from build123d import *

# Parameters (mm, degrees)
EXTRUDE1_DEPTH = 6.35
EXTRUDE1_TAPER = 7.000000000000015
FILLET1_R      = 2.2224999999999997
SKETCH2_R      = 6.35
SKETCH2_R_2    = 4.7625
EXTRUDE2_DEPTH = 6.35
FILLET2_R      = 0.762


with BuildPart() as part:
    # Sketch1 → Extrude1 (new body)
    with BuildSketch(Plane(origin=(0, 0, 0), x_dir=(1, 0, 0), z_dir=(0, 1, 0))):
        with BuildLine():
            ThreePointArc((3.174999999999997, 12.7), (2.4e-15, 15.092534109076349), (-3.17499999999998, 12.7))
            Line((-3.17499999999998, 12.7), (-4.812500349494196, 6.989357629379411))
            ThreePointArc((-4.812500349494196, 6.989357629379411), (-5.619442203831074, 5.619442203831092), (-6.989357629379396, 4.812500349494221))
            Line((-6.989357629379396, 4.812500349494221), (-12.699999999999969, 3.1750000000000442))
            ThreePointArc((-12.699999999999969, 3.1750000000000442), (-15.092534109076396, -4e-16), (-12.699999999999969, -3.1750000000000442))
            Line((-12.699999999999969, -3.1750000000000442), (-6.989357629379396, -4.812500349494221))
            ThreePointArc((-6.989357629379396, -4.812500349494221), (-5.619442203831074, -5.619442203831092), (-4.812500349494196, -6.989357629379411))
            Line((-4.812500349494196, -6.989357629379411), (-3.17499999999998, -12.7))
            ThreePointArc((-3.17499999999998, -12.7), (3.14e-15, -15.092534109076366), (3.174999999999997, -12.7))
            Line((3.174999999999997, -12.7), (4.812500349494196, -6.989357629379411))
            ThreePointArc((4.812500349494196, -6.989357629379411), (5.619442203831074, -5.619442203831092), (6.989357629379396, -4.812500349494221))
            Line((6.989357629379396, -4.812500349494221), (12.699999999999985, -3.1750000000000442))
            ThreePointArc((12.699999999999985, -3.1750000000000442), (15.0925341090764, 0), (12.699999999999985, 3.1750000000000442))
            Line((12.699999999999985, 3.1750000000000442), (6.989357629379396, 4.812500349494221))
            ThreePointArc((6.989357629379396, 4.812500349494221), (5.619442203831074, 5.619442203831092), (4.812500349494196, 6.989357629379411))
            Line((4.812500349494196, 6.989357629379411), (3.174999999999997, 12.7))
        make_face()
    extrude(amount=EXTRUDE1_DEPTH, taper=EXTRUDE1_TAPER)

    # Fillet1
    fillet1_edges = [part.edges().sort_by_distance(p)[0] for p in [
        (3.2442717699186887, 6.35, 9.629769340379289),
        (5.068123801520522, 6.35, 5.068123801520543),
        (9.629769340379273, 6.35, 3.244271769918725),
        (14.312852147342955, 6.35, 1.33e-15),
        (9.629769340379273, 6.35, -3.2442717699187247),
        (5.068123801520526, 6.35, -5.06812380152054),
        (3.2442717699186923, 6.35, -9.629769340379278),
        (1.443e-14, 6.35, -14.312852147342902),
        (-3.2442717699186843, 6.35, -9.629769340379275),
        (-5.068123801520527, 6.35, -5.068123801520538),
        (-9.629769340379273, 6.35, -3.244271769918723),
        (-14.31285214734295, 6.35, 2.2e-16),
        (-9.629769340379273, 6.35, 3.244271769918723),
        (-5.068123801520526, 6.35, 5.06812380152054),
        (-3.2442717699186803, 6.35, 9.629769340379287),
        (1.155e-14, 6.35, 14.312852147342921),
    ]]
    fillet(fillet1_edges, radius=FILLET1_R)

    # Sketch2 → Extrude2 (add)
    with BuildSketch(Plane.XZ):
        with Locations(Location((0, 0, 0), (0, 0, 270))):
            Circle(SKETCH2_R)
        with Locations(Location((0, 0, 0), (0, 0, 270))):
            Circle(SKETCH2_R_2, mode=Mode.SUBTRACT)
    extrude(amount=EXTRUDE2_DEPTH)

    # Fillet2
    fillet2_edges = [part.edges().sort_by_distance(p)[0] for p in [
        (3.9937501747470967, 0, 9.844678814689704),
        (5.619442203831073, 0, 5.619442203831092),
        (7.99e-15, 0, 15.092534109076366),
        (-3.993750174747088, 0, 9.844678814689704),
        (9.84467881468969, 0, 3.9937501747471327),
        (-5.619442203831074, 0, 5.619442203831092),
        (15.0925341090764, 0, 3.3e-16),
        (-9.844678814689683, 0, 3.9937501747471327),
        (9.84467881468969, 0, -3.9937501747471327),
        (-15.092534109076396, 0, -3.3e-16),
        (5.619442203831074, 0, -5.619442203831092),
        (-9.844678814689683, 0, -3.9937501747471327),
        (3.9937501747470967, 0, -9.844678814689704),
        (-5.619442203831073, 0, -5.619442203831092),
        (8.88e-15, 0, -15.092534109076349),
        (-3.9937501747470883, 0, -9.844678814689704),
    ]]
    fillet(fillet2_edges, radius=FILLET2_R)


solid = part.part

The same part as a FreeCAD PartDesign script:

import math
import FreeCAD as App
import Part
import Sketcher

V = App.Vector
Q = App.Units.Quantity


def edges_at(feature, points):
    """Names of the edges that pass closest to the given points."""
    edges = feature.Shape.Edges
    near = lambda p: min(range(len(edges)), key=lambda i: edges[i].distToShape(Part.Vertex(*p))[0])
    return sorted({f"Edge{near(p) + 1}" for p in points})

doc = App.newDocument("Part")
body = doc.addObject("PartDesign::Body", "Body")

sketch1 = body.newObject("Sketcher::SketchObject", "Sketch")
sketch1.AttachmentSupport = (doc.getObject("XZ_Plane"), [""])
sketch1.MapMode = "FlatFace"
sketch1.addGeometry([
    Part.ArcOfCircle(Part.Circle(V(0, -11.8, 0), V(0, 0, 1), 3.3), math.radians(-164), math.radians(-16)),
    Part.LineSegment(V(-3.2, -12.7, 0), V(-4.8, -7, 0)),
    Part.ArcOfCircle(Part.Circle(V(-7.9, -7.9, 0), V(0, 0, 1), 3.2), math.radians(16), math.radians(74)),
    Part.LineSegment(V(-7, -4.8, 0), V(-12.7, -3.2, 0)),
    Part.ArcOfCircle(Part.Circle(V(-11.8, 0, 0), V(0, 0, 1), 3.3), math.radians(106), math.radians(254)),
    Part.LineSegment(V(-12.7, 3.2, 0), V(-7, 4.8, 0)),
    Part.ArcOfCircle(Part.Circle(V(-7.9, 7.9, 0), V(0, 0, 1), 3.2), math.radians(-74), math.radians(-16)),
    Part.LineSegment(V(-4.8, 7, 0), V(-3.2, 12.7, 0)),
    Part.ArcOfCircle(Part.Circle(V(0, 11.8, 0), V(0, 0, 1), 3.3), math.radians(16), math.radians(164)),
    Part.LineSegment(V(3.2, 12.7, 0), V(4.8, 7, 0)),
    Part.ArcOfCircle(Part.Circle(V(7.9, 7.9, 0), V(0, 0, 1), 3.2), math.radians(-164), math.radians(-106)),
    Part.LineSegment(V(7, 4.8, 0), V(12.7, 3.2, 0)),
    Part.ArcOfCircle(Part.Circle(V(11.8, 0, 0), V(0, 0, 1), 3.3), math.radians(-74), math.radians(74)),
    Part.LineSegment(V(12.7, -3.2, 0), V(7, -4.8, 0)),
    Part.ArcOfCircle(Part.Circle(V(7.9, -7.9, 0), V(0, 0, 1), 3.2), math.radians(106), math.radians(164)),
    Part.LineSegment(V(4.8, -7, 0), V(3.2, -12.7, 0)),
], False)
sketch1.addConstraint([
    Sketcher.Constraint("Tangent", 0, 1, 1, 1),
    Sketcher.Constraint("Tangent", 1, 2, 2, 1),
    Sketcher.Constraint("Tangent", 2, 2, 3, 1),
    Sketcher.Constraint("Tangent", 3, 2, 4, 2),
    Sketcher.Constraint("Tangent", 4, 1, 5, 1),
    Sketcher.Constraint("Tangent", 5, 2, 6, 1),
    Sketcher.Constraint("Tangent", 6, 2, 7, 1),
    Sketcher.Constraint("Tangent", 7, 2, 8, 2),
    Sketcher.Constraint("Tangent", 8, 1, 9, 1),
    Sketcher.Constraint("Tangent", 9, 2, 10, 1),
    Sketcher.Constraint("Tangent", 10, 2, 11, 1),
    Sketcher.Constraint("Tangent", 11, 2, 12, 2),
    Sketcher.Constraint("Tangent", 12, 1, 13, 1),
    Sketcher.Constraint("Tangent", 13, 2, 14, 1),
    Sketcher.Constraint("Tangent", 14, 2, 15, 1),
    Sketcher.Constraint("Tangent", 15, 2, 0, 2),
    Sketcher.Constraint("Equal", 0, 4),
    Sketcher.Constraint("Equal", 2, 6),
    Sketcher.Constraint("Equal", 4, 8),
    Sketcher.Constraint("Equal", 6, 10),
    Sketcher.Constraint("Equal", 8, 12),
    Sketcher.Constraint("Equal", 10, 14),
    Sketcher.Constraint("Symmetric", 0, 3, 8, 3, -1, 1),
    Sketcher.Constraint("Symmetric", 2, 3, 10, 3, -1, 1),
    Sketcher.Constraint("Symmetric", 4, 3, 12, 3, -1, 1),
    Sketcher.Constraint("Symmetric", 6, 3, 14, 3, -1, 1),
    Sketcher.Constraint("Symmetric", 6, 3, 10, 3, -2),
    Sketcher.Constraint("PointOnObject", 0, 3, -2),
    Sketcher.Constraint("PointOnObject", 4, 3, -1),
    Sketcher.Constraint("Perpendicular", 1, 5),
    Sketcher.Constraint("Equal", 1, 3),
    Sketcher.Constraint("Angle", 1, Q("106 deg")),
    Sketcher.Constraint("Radius", 2, Q("0.125 in")),
    Sketcher.Constraint("DistanceY", 0, 1, -1, 1, Q("0.5 in")),
    Sketcher.Constraint("DistanceY", 3, 2, 4, 1, Q("0.25 in")),
])
pad1 = body.newObject("PartDesign::Pad", "Pad")
pad1.Profile = sketch1
pad1.Length = Q("0.25 in")
pad1.Reversed = True
pad1.TaperAngle = -7
doc.recompute()

fillet = body.newObject("PartDesign::Fillet", "Fillet")
fillet.Base = (pad1, edges_at(pad1, [
    (3.244, 6.35, 9.63),
    (5.068, 6.35, 5.068),
    (9.63, 6.35, 3.244),
    (14.313, 6.35, 0),
    (9.63, 6.35, -3.244),
    (5.068, 6.35, -5.068),
    (3.244, 6.35, -9.63),
    (0, 6.35, -14.313),
    (-3.244, 6.35, -9.63),
    (-5.068, 6.35, -5.068),
    (-9.63, 6.35, -3.244),
    (-14.313, 6.35, 0),
    (-9.63, 6.35, 3.244),
    (-5.068, 6.35, 5.068),
    (-3.244, 6.35, 9.63),
    (0, 6.35, 14.313),
]))
fillet.Radius = Q("0.0875 in")

sketch2 = body.newObject("Sketcher::SketchObject", "Sketch001")
sketch2.AttachmentSupport = (doc.getObject("XZ_Plane"), [""])
sketch2.MapMode = "FlatFace"
sketch2.addGeometry([
    Part.Circle(V(0, 0, 0), V(0, 0, 1), 6.3),
    Part.Circle(V(0, 0, 0), V(0, 0, 1), 4.8),
], False)
sketch2.addConstraint([
    Sketcher.Constraint("Coincident", 0, 3, -1, 1),
    Sketcher.Constraint("Coincident", 1, 3, -1, 1),
    Sketcher.Constraint("Diameter", 0, Q("0.5 in")),
    Sketcher.Constraint("Diameter", 1, Q("0.375 in")),
])
pad2 = body.newObject("PartDesign::Pad", "Pad001")
pad2.Profile = sketch2
pad2.Length = Q("0.25 in")
doc.recompute()

fillet2 = body.newObject("PartDesign::Fillet", "Fillet001")
fillet2.Base = (pad2, edges_at(pad2, [
    (3.994, 0, 9.845),
    (5.619, 0, 5.619),
    (0, 0, 15.093),
    (-3.994, 0, 9.845),
    (9.845, 0, 3.994),
    (-5.619, 0, 5.619),
    (15.093, 0, 0),
    (-9.845, 0, 3.994),
    (9.845, 0, -3.994),
    (-15.093, 0, 0),
    (5.619, 0, -5.619),
    (-9.845, 0, -3.994),
    (3.994, 0, -9.845),
    (-5.619, 0, -5.619),
    (0, 0, -15.093),
    (-3.994, 0, -9.845),
]))
fillet2.Radius = Q("0.03 in")

doc.recompute()
